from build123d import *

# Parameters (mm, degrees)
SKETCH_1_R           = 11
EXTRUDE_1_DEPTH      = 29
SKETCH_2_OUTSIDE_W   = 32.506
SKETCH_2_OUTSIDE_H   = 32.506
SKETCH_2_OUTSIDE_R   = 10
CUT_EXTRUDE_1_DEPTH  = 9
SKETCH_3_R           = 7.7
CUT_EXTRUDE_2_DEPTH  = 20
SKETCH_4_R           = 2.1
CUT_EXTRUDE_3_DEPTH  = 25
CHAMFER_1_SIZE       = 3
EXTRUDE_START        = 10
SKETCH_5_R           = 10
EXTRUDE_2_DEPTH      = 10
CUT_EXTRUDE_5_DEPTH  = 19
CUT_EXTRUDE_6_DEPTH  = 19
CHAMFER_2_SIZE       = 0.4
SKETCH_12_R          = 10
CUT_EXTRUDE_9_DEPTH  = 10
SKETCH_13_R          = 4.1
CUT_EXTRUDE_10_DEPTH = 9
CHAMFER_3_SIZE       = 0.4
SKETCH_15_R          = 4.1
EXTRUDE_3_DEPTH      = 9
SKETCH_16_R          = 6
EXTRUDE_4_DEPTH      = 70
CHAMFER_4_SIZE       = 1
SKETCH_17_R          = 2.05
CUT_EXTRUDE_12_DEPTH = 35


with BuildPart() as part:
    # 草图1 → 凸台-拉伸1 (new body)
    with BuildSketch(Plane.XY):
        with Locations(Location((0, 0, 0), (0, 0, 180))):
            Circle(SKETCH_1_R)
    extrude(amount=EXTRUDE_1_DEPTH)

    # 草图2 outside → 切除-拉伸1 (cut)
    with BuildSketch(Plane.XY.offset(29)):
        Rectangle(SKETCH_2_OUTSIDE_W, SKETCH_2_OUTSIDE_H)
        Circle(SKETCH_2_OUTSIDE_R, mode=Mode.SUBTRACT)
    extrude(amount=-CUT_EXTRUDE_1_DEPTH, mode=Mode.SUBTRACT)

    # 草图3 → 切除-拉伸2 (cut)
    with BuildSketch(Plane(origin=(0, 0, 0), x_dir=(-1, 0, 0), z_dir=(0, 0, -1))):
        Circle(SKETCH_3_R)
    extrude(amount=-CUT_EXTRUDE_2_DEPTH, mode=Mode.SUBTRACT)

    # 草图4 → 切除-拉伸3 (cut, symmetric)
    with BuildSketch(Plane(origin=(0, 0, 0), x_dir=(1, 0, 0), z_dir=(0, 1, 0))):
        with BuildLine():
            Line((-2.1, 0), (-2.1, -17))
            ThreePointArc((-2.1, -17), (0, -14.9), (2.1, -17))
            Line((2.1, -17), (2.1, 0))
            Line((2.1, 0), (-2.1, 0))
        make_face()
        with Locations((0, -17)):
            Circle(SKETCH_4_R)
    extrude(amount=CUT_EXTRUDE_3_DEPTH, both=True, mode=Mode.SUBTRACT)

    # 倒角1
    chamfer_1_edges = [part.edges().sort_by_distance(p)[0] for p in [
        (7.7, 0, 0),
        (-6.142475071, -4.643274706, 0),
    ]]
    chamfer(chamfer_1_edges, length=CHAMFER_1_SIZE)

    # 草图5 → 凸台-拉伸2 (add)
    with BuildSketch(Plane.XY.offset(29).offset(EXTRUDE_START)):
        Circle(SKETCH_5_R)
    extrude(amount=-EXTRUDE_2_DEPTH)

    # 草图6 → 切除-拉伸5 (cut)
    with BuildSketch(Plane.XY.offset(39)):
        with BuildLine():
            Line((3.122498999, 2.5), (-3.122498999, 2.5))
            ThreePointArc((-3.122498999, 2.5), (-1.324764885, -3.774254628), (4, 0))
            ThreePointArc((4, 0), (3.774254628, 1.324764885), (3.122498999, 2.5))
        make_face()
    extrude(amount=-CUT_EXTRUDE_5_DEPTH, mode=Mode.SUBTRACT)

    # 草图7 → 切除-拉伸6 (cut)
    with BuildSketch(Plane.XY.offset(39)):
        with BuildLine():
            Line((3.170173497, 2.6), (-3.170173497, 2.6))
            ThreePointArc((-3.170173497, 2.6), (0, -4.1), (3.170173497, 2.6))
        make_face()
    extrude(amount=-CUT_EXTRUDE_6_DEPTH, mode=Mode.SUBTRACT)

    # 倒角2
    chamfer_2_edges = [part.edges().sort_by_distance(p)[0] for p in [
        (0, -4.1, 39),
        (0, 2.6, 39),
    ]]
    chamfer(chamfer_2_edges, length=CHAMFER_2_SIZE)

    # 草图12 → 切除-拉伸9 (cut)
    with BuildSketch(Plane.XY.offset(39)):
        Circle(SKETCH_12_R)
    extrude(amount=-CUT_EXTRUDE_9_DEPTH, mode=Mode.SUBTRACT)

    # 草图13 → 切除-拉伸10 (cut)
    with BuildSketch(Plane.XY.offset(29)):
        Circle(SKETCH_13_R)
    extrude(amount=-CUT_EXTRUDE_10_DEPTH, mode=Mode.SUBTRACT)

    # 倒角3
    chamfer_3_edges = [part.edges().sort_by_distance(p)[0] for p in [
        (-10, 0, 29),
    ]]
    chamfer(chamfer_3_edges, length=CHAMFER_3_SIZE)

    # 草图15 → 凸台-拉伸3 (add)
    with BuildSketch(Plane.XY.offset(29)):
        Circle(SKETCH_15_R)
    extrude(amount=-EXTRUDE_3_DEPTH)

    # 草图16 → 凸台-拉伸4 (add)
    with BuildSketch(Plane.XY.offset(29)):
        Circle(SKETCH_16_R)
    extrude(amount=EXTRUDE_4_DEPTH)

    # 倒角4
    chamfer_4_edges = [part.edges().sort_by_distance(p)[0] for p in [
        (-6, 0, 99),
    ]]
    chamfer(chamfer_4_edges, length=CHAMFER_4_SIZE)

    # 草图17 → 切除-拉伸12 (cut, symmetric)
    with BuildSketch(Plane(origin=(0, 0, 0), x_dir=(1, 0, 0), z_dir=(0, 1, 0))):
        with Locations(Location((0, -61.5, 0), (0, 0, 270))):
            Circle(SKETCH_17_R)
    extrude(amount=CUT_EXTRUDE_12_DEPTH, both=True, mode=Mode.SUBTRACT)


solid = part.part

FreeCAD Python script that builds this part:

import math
import FreeCAD as App
import Part
import Sketcher
Q = App.Units.Quantity


def edges_at(feature, points):
    """Names of the edges that pass closest to the given points."""
    edges = feature.Shape.Edges
    near = lambda p: min(range(len(edges)), key=lambda i: edges[i].distToShape(Part.Vertex(*p))[0])
    return sorted({f"Edge{near(p) + 1}" for p in points})


def add_polygon(sketch, points):
    """Adds a closed chain of lines whose ends are joined by coincident constraints."""
    first, n = sketch.GeometryCount, len(points)
    for a, b in zip(points, points[1:] + points[:1]):
        sketch.addGeometry(Part.LineSegment(App.Vector(*a, 0), App.Vector(*b, 0)), False)
    for i in range(n):
        sketch.addConstraint(Sketcher.Constraint("Coincident", first + i, 2, first + (i + 1) % n, 1))

doc = App.newDocument("Part")
body = doc.addObject("PartDesign::Body", "Body")

# Sketch on XY plane
sketch1 = doc.addObject("Sketcher::SketchObject", "Sketch")
body.addObject(sketch1)
sketch1.AttachmentSupport = (doc.XY_Plane, [""])
sketch1.MapMode = "FlatFace"
sketch1.addGeometry(Part.Circle(App.Vector(0, 0, 0), App.Vector(0, 0, 1), 11), False)
sketch1.addConstraint(Sketcher.Constraint("Coincident", 0, 3, -1, 1))
sketch1.addConstraint(Sketcher.Constraint("Diameter", 0, Q("22 mm")))
pad1 = doc.addObject("PartDesign::Pad", "Pad")
body.addObject(pad1)
pad1.Profile = sketch1
pad1.Length = 29

# Sketch on XY plane
sketch2 = doc.addObject("Sketcher::SketchObject", "Sketch001")
body.addObject(sketch2)
sketch2.AttachmentSupport = (doc.XY_Plane, [""])
sketch2.MapMode = "FlatFace"
sketch2.AttachmentOffset = App.Placement(App.Vector(0, 0, 29), App.Rotation())
add_polygon(sketch2, [(-16, 16), (-16, -16), (16, -16), (16, 16)])  # lines 0-3
sketch2.addGeometry(Part.Circle(App.Vector(0, 0, 0), App.Vector(0, 0, 1), 10), False)  # 4
sketch2.addConstraint(Sketcher.Constraint("Vertical", 0))
sketch2.addConstraint(Sketcher.Constraint("Horizontal", 1))
sketch2.addConstraint(Sketcher.Constraint("Vertical", 2))
sketch2.addConstraint(Sketcher.Constraint("Horizontal", 3))
sketch2.addConstraint(Sketcher.Constraint("Coincident", 4, 3, -1, 1))
sketch2.addConstraint(Sketcher.Constraint("Symmetric", 0, 2, 2, 2, -1, 1))
sketch2.addConstraint(Sketcher.Constraint("Equal", 3, 0))
sketch2.addConstraint(Sketcher.Constraint("Diameter", 4, Q("20 mm")))
sketch2.addConstraint(Sketcher.Constraint("DistanceX", 1, 1, 1, 2, Q("32.506 mm")))
pocket1 = doc.addObject("PartDesign::Pocket", "Pocket")
body.addObject(pocket1)
pocket1.Profile = sketch2
pocket1.Length = 9

# Sketch on XY plane
sketch3 = doc.addObject("Sketcher::SketchObject", "Sketch002")
body.addObject(sketch3)
sketch3.AttachmentSupport = (doc.XY_Plane, [""])
sketch3.MapMode = "FlatFace"
sketch3.addGeometry(Part.Circle(App.Vector(0, 0, 0), App.Vector(0, 0, 1), 8), False)
sketch3.addConstraint(Sketcher.Constraint("Coincident", 0, 3, -1, 1))
sketch3.addConstraint(Sketcher.Constraint("Diameter", 0, Q("15.4 mm")))
pocket2 = doc.addObject("PartDesign::Pocket", "Pocket001")
body.addObject(pocket2)
pocket2.Profile = sketch3
pocket2.Length = 20
pocket2.Reversed = True

# Sketch on XZ plane
sketch4 = doc.addObject("Sketcher::SketchObject", "Sketch003")
body.addObject(sketch4)
sketch4.AttachmentSupport = (doc.XZ_Plane, [""])
sketch4.MapMode = "FlatFace"
sketch4.addGeometry(Part.LineSegment(App.Vector(-2.1, 0, 0), App.Vector(-2.1, 17, 0)), False)
sketch4.addGeometry(Part.ArcOfCircle(Part.Circle(App.Vector(0, 17, 0), App.Vector(0, 0, 1), 2.1), math.radians(0), math.radians(180)), False)
sketch4.addGeometry(Part.LineSegment(App.Vector(2.1, 17, 0), App.Vector(2.1, 0, 0)), False)
sketch4.addGeometry(Part.LineSegment(App.Vector(2.1, 0, 0), App.Vector(-2.1, 0, 0)), False)
sketch4.addConstraint(Sketcher.Constraint("Tangent", 0, 2, 1, 2))
sketch4.addConstraint(Sketcher.Constraint("Tangent", 1, 1, 2, 1))
sketch4.addConstraint(Sketcher.Constraint("Coincident", 2, 2, 3, 1))
sketch4.addConstraint(Sketcher.Constraint("Coincident", 3, 2, 0, 1))
sketch4.addConstraint(Sketcher.Constraint("Vertical", 0))
sketch4.addConstraint(Sketcher.Constraint("Vertical", 2))
sketch4.addConstraint(Sketcher.Constraint("Horizontal", 3))
sketch4.addConstraint(Sketcher.Constraint("Symmetric", 2, 2, 3, 2, -1, 1))
sketch4.addConstraint(Sketcher.Constraint("Radius", 1, Q("2.1 mm")))
sketch4.addConstraint(Sketcher.Constraint("DistanceY", 0, 1, 0, 2, Q("17 mm")))
pocket3 = doc.addObject("PartDesign::Pocket", "Pocket002")
body.addObject(pocket3)
pocket3.Profile = sketch4
pocket3.Length = 50
pocket3.Midplane = True
doc.recompute()

chamfer = doc.addObject("PartDesign::Chamfer", "Chamfer")
body.addObject(chamfer)
chamfer.Base = (pocket3, edges_at(pocket3, [(7.7, 0, 0), (-6.142, -4.643, 0)]))
chamfer.Size = 3

# Sketch on XY plane
sketch5 = doc.addObject("Sketcher::SketchObject", "Sketch004")
body.addObject(sketch5)
sketch5.AttachmentSupport = (doc.XY_Plane, [""])
sketch5.MapMode = "FlatFace"
sketch5.AttachmentOffset = App.Placement(App.Vector(0, 0, 39), App.Rotation())
sketch5.addGeometry(Part.Circle(App.Vector(0, 0, 0), App.Vector(0, 0, 1), 10), False)
sketch5.addConstraint(Sketcher.Constraint("Coincident", 0, 3, -1, 1))
sketch5.addConstraint(Sketcher.Constraint("Diameter", 0, Q("20 mm")))
pad2 = doc.addObject("PartDesign::Pad", "Pad001")
body.addObject(pad2)
pad2.Profile = sketch5
pad2.Length = 10
pad2.Reversed = True

# Sketch on XY plane
sketch6 = doc.addObject("Sketcher::SketchObject", "Sketch005")
body.addObject(sketch6)
sketch6.AttachmentSupport = (doc.XY_Plane, [""])
sketch6.MapMode = "FlatFace"
sketch6.AttachmentOffset = App.Placement(App.Vector(0, 0, 39), App.Rotation())
sketch6.addGeometry(Part.LineSegment(App.Vector(3.1, 2.5, 0), App.Vector(-3.1, 2.5, 0)), False)
sketch6.addGeometry(Part.ArcOfCircle(Part.Circle(App.Vector(0, 0, 0), App.Vector(0, 0, 1), 4), math.radians(141), math.radians(360)), False)
sketch6.addGeometry(Part.ArcOfCircle(Part.Circle(App.Vector(0, 0, 0), App.Vector(0, 0, 1), 4), math.radians(0), math.radians(39)), False)
sketch6.addConstraint(Sketcher.Constraint("Coincident", 0, 2, 1, 1))
sketch6.addConstraint(Sketcher.Constraint("Tangent", 1, 2, 2, 1))
sketch6.addConstraint(Sketcher.Constraint("Coincident", 2, 2, 0, 1))
sketch6.addConstraint(Sketcher.Constraint("Horizontal", 0))
sketch6.addConstraint(Sketcher.Constraint("Coincident", 1, 3, -1, 1))
sketch6.addConstraint(Sketcher.Constraint("Equal", 1, 2))
sketch6.addConstraint(Sketcher.Constraint("PointOnObject", 1, 2, -1))
sketch6.addConstraint(Sketcher.Constraint("Radius", 1, Q("4 mm")))
sketch6.addConstraint(Sketcher.Constraint("DistanceY", -1, 1, 0, 2, Q("2.5 mm")))
pocket4 = doc.addObject("PartDesign::Pocket", "Pocket003")
body.addObject(pocket4)
pocket4.Profile = sketch6
pocket4.Length = 19

# Sketch on XY plane
sketch7 = doc.addObject("Sketcher::SketchObject", "Sketch006")
body.addObject(sketch7)
sketch7.AttachmentSupport = (doc.XY_Plane, [""])
sketch7.MapMode = "FlatFace"
sketch7.AttachmentOffset = App.Placement(App.Vector(0, 0, 39), App.Rotation())
sketch7.addGeometry(Part.LineSegment(App.Vector(3.2, 2.6, 0), App.Vector(-3.2, 2.6, 0)), False)
sketch7.addGeometry(Part.ArcOfCircle(Part.Circle(App.Vector(0, 0, 0), App.Vector(0, 0, 1), 4.1), math.radians(141), math.radians(399)), False)
sketch7.addConstraint(Sketcher.Constraint("Coincident", 0, 1, 1, 2))
sketch7.addConstraint(Sketcher.Constraint("Coincident", 1, 1, 0, 2))
sketch7.addConstraint(Sketcher.Constraint("Horizontal", 0))
sketch7.addConstraint(Sketcher.Constraint("Coincident", 1, 3, -1, 1))
sketch7.addConstraint(Sketcher.Constraint("Radius", 1, Q("4.1 mm")))
sketch7.addConstraint(Sketcher.Constraint("DistanceY", -1, 1, 0, 1, Q("2.6 mm")))
pocket5 = doc.addObject("PartDesign::Pocket", "Pocket004")
body.addObject(pocket5)
pocket5.Profile = sketch7
pocket5.Length = 19
doc.recompute()

chamfer2 = doc.addObject("PartDesign::Chamfer", "Chamfer001")
body.addObject(chamfer2)
chamfer2.Base = (pocket5, edges_at(pocket5, [(0, -4.1, 39), (0, 2.6, 39)]))
chamfer2.Size = 0.4

# Sketch on XY plane
sketch8 = doc.addObject("Sketcher::SketchObject", "Sketch007")
body.addObject(sketch8)
sketch8.AttachmentSupport = (doc.XY_Plane, [""])
sketch8.MapMode = "FlatFace"
sketch8.AttachmentOffset = App.Placement(App.Vector(0, 0, 39), App.Rotation())
sketch8.addGeometry(Part.Circle(App.Vector(0, 0, 0), App.Vector(0, 0, 1), 10), False)
sketch8.addConstraint(Sketcher.Constraint("Coincident", 0, 3, -1, 1))
sketch8.addConstraint(Sketcher.Constraint("Diameter", 0, Q("20 mm")))
pocket6 = doc.addObject("PartDesign::Pocket", "Pocket005")
body.addObject(pocket6)
pocket6.Profile = sketch8
pocket6.Length = 10

# Sketch on XY plane
sketch9 = doc.addObject("Sketcher::SketchObject", "Sketch008")
body.addObject(sketch9)
sketch9.AttachmentSupport = (doc.XY_Plane, [""])
sketch9.MapMode = "FlatFace"
sketch9.AttachmentOffset = App.Placement(App.Vector(0, 0, 29), App.Rotation())
sketch9.addGeometry(Part.Circle(App.Vector(0, 0, 0), App.Vector(0, 0, 1), 4.1), False)
sketch9.addConstraint(Sketcher.Constraint("Coincident", 0, 3, -1, 1))
sketch9.addConstraint(Sketcher.Constraint("Diameter", 0, Q("8.2 mm")))
pocket7 = doc.addObject("PartDesign::Pocket", "Pocket006")
body.addObject(pocket7)
pocket7.Profile = sketch9
pocket7.Length = 9
doc.recompute()

chamfer3 = doc.addObject("PartDesign::Chamfer", "Chamfer002")
body.addObject(chamfer3)
chamfer3.Base = (pocket7, edges_at(pocket7, [(-10, 0, 29)]))
chamfer3.Size = 0.4

# Sketch on XY plane
sketch10 = doc.addObject("Sketcher::SketchObject", "Sketch009")
body.addObject(sketch10)
sketch10.AttachmentSupport = (doc.XY_Plane, [""])
sketch10.MapMode = "FlatFace"
sketch10.AttachmentOffset = App.Placement(App.Vector(0, 0, 29), App.Rotation())
sketch10.addGeometry(Part.Circle(App.Vector(0, 0, 0), App.Vector(0, 0, 1), 4.1), False)
sketch10.addConstraint(Sketcher.Constraint("Coincident", 0, 3, -1, 1))
sketch10.addConstraint(Sketcher.Constraint("Diameter", 0, Q("8.2 mm")))
pad3 = doc.addObject("PartDesign::Pad", "Pad002")
body.addObject(pad3)
pad3.Profile = sketch10
pad3.Length = 9
pad3.Reversed = True

# Sketch on XY plane
sketch11 = doc.addObject("Sketcher::SketchObject", "Sketch010")
body.addObject(sketch11)
sketch11.AttachmentSupport = (doc.XY_Plane, [""])
sketch11.MapMode = "FlatFace"
sketch11.AttachmentOffset = App.Placement(App.Vector(0, 0, 29), App.Rotation())
sketch11.addGeometry(Part.Circle(App.Vector(0, 0, 0), App.Vector(0, 0, 1), 6), False)
sketch11.addConstraint(Sketcher.Constraint("Coincident", 0, 3, -1, 1))
sketch11.addConstraint(Sketcher.Constraint("Diameter", 0, Q("12 mm")))
pad4 = doc.addObject("PartDesign::Pad", "Pad003")
body.addObject(pad4)
pad4.Profile = sketch11
pad4.Length = 70
doc.recompute()

chamfer4 = doc.addObject("PartDesign::Chamfer", "Chamfer003")
body.addObject(chamfer4)
chamfer4.Base = (pad4, edges_at(pad4, [(-6, 0, 99)]))
chamfer4.Size = 1

# Sketch on XZ plane
sketch12 = doc.addObject("Sketcher::SketchObject", "Sketch011")
body.addObject(sketch12)
sketch12.AttachmentSupport = (doc.XZ_Plane, [""])
sketch12.MapMode = "FlatFace"
sketch12.addGeometry(Part.Circle(App.Vector(0, 61.5, 0), App.Vector(0, 0, 1), 2), False)
sketch12.addConstraint(Sketcher.Constraint("PointOnObject", 0, 3, -2))
sketch12.addConstraint(Sketcher.Constraint("Diameter", 0, Q("4.1 mm")))
sketch12.addConstraint(Sketcher.Constraint("DistanceY", -1, 1, 0, 3, Q("61.5 mm")))
pocket8 = doc.addObject("PartDesign::Pocket", "Pocket007")
body.addObject(pocket8)
pocket8.Profile = sketch12
pocket8.Length = 70
pocket8.Midplane = True

doc.recompute()
